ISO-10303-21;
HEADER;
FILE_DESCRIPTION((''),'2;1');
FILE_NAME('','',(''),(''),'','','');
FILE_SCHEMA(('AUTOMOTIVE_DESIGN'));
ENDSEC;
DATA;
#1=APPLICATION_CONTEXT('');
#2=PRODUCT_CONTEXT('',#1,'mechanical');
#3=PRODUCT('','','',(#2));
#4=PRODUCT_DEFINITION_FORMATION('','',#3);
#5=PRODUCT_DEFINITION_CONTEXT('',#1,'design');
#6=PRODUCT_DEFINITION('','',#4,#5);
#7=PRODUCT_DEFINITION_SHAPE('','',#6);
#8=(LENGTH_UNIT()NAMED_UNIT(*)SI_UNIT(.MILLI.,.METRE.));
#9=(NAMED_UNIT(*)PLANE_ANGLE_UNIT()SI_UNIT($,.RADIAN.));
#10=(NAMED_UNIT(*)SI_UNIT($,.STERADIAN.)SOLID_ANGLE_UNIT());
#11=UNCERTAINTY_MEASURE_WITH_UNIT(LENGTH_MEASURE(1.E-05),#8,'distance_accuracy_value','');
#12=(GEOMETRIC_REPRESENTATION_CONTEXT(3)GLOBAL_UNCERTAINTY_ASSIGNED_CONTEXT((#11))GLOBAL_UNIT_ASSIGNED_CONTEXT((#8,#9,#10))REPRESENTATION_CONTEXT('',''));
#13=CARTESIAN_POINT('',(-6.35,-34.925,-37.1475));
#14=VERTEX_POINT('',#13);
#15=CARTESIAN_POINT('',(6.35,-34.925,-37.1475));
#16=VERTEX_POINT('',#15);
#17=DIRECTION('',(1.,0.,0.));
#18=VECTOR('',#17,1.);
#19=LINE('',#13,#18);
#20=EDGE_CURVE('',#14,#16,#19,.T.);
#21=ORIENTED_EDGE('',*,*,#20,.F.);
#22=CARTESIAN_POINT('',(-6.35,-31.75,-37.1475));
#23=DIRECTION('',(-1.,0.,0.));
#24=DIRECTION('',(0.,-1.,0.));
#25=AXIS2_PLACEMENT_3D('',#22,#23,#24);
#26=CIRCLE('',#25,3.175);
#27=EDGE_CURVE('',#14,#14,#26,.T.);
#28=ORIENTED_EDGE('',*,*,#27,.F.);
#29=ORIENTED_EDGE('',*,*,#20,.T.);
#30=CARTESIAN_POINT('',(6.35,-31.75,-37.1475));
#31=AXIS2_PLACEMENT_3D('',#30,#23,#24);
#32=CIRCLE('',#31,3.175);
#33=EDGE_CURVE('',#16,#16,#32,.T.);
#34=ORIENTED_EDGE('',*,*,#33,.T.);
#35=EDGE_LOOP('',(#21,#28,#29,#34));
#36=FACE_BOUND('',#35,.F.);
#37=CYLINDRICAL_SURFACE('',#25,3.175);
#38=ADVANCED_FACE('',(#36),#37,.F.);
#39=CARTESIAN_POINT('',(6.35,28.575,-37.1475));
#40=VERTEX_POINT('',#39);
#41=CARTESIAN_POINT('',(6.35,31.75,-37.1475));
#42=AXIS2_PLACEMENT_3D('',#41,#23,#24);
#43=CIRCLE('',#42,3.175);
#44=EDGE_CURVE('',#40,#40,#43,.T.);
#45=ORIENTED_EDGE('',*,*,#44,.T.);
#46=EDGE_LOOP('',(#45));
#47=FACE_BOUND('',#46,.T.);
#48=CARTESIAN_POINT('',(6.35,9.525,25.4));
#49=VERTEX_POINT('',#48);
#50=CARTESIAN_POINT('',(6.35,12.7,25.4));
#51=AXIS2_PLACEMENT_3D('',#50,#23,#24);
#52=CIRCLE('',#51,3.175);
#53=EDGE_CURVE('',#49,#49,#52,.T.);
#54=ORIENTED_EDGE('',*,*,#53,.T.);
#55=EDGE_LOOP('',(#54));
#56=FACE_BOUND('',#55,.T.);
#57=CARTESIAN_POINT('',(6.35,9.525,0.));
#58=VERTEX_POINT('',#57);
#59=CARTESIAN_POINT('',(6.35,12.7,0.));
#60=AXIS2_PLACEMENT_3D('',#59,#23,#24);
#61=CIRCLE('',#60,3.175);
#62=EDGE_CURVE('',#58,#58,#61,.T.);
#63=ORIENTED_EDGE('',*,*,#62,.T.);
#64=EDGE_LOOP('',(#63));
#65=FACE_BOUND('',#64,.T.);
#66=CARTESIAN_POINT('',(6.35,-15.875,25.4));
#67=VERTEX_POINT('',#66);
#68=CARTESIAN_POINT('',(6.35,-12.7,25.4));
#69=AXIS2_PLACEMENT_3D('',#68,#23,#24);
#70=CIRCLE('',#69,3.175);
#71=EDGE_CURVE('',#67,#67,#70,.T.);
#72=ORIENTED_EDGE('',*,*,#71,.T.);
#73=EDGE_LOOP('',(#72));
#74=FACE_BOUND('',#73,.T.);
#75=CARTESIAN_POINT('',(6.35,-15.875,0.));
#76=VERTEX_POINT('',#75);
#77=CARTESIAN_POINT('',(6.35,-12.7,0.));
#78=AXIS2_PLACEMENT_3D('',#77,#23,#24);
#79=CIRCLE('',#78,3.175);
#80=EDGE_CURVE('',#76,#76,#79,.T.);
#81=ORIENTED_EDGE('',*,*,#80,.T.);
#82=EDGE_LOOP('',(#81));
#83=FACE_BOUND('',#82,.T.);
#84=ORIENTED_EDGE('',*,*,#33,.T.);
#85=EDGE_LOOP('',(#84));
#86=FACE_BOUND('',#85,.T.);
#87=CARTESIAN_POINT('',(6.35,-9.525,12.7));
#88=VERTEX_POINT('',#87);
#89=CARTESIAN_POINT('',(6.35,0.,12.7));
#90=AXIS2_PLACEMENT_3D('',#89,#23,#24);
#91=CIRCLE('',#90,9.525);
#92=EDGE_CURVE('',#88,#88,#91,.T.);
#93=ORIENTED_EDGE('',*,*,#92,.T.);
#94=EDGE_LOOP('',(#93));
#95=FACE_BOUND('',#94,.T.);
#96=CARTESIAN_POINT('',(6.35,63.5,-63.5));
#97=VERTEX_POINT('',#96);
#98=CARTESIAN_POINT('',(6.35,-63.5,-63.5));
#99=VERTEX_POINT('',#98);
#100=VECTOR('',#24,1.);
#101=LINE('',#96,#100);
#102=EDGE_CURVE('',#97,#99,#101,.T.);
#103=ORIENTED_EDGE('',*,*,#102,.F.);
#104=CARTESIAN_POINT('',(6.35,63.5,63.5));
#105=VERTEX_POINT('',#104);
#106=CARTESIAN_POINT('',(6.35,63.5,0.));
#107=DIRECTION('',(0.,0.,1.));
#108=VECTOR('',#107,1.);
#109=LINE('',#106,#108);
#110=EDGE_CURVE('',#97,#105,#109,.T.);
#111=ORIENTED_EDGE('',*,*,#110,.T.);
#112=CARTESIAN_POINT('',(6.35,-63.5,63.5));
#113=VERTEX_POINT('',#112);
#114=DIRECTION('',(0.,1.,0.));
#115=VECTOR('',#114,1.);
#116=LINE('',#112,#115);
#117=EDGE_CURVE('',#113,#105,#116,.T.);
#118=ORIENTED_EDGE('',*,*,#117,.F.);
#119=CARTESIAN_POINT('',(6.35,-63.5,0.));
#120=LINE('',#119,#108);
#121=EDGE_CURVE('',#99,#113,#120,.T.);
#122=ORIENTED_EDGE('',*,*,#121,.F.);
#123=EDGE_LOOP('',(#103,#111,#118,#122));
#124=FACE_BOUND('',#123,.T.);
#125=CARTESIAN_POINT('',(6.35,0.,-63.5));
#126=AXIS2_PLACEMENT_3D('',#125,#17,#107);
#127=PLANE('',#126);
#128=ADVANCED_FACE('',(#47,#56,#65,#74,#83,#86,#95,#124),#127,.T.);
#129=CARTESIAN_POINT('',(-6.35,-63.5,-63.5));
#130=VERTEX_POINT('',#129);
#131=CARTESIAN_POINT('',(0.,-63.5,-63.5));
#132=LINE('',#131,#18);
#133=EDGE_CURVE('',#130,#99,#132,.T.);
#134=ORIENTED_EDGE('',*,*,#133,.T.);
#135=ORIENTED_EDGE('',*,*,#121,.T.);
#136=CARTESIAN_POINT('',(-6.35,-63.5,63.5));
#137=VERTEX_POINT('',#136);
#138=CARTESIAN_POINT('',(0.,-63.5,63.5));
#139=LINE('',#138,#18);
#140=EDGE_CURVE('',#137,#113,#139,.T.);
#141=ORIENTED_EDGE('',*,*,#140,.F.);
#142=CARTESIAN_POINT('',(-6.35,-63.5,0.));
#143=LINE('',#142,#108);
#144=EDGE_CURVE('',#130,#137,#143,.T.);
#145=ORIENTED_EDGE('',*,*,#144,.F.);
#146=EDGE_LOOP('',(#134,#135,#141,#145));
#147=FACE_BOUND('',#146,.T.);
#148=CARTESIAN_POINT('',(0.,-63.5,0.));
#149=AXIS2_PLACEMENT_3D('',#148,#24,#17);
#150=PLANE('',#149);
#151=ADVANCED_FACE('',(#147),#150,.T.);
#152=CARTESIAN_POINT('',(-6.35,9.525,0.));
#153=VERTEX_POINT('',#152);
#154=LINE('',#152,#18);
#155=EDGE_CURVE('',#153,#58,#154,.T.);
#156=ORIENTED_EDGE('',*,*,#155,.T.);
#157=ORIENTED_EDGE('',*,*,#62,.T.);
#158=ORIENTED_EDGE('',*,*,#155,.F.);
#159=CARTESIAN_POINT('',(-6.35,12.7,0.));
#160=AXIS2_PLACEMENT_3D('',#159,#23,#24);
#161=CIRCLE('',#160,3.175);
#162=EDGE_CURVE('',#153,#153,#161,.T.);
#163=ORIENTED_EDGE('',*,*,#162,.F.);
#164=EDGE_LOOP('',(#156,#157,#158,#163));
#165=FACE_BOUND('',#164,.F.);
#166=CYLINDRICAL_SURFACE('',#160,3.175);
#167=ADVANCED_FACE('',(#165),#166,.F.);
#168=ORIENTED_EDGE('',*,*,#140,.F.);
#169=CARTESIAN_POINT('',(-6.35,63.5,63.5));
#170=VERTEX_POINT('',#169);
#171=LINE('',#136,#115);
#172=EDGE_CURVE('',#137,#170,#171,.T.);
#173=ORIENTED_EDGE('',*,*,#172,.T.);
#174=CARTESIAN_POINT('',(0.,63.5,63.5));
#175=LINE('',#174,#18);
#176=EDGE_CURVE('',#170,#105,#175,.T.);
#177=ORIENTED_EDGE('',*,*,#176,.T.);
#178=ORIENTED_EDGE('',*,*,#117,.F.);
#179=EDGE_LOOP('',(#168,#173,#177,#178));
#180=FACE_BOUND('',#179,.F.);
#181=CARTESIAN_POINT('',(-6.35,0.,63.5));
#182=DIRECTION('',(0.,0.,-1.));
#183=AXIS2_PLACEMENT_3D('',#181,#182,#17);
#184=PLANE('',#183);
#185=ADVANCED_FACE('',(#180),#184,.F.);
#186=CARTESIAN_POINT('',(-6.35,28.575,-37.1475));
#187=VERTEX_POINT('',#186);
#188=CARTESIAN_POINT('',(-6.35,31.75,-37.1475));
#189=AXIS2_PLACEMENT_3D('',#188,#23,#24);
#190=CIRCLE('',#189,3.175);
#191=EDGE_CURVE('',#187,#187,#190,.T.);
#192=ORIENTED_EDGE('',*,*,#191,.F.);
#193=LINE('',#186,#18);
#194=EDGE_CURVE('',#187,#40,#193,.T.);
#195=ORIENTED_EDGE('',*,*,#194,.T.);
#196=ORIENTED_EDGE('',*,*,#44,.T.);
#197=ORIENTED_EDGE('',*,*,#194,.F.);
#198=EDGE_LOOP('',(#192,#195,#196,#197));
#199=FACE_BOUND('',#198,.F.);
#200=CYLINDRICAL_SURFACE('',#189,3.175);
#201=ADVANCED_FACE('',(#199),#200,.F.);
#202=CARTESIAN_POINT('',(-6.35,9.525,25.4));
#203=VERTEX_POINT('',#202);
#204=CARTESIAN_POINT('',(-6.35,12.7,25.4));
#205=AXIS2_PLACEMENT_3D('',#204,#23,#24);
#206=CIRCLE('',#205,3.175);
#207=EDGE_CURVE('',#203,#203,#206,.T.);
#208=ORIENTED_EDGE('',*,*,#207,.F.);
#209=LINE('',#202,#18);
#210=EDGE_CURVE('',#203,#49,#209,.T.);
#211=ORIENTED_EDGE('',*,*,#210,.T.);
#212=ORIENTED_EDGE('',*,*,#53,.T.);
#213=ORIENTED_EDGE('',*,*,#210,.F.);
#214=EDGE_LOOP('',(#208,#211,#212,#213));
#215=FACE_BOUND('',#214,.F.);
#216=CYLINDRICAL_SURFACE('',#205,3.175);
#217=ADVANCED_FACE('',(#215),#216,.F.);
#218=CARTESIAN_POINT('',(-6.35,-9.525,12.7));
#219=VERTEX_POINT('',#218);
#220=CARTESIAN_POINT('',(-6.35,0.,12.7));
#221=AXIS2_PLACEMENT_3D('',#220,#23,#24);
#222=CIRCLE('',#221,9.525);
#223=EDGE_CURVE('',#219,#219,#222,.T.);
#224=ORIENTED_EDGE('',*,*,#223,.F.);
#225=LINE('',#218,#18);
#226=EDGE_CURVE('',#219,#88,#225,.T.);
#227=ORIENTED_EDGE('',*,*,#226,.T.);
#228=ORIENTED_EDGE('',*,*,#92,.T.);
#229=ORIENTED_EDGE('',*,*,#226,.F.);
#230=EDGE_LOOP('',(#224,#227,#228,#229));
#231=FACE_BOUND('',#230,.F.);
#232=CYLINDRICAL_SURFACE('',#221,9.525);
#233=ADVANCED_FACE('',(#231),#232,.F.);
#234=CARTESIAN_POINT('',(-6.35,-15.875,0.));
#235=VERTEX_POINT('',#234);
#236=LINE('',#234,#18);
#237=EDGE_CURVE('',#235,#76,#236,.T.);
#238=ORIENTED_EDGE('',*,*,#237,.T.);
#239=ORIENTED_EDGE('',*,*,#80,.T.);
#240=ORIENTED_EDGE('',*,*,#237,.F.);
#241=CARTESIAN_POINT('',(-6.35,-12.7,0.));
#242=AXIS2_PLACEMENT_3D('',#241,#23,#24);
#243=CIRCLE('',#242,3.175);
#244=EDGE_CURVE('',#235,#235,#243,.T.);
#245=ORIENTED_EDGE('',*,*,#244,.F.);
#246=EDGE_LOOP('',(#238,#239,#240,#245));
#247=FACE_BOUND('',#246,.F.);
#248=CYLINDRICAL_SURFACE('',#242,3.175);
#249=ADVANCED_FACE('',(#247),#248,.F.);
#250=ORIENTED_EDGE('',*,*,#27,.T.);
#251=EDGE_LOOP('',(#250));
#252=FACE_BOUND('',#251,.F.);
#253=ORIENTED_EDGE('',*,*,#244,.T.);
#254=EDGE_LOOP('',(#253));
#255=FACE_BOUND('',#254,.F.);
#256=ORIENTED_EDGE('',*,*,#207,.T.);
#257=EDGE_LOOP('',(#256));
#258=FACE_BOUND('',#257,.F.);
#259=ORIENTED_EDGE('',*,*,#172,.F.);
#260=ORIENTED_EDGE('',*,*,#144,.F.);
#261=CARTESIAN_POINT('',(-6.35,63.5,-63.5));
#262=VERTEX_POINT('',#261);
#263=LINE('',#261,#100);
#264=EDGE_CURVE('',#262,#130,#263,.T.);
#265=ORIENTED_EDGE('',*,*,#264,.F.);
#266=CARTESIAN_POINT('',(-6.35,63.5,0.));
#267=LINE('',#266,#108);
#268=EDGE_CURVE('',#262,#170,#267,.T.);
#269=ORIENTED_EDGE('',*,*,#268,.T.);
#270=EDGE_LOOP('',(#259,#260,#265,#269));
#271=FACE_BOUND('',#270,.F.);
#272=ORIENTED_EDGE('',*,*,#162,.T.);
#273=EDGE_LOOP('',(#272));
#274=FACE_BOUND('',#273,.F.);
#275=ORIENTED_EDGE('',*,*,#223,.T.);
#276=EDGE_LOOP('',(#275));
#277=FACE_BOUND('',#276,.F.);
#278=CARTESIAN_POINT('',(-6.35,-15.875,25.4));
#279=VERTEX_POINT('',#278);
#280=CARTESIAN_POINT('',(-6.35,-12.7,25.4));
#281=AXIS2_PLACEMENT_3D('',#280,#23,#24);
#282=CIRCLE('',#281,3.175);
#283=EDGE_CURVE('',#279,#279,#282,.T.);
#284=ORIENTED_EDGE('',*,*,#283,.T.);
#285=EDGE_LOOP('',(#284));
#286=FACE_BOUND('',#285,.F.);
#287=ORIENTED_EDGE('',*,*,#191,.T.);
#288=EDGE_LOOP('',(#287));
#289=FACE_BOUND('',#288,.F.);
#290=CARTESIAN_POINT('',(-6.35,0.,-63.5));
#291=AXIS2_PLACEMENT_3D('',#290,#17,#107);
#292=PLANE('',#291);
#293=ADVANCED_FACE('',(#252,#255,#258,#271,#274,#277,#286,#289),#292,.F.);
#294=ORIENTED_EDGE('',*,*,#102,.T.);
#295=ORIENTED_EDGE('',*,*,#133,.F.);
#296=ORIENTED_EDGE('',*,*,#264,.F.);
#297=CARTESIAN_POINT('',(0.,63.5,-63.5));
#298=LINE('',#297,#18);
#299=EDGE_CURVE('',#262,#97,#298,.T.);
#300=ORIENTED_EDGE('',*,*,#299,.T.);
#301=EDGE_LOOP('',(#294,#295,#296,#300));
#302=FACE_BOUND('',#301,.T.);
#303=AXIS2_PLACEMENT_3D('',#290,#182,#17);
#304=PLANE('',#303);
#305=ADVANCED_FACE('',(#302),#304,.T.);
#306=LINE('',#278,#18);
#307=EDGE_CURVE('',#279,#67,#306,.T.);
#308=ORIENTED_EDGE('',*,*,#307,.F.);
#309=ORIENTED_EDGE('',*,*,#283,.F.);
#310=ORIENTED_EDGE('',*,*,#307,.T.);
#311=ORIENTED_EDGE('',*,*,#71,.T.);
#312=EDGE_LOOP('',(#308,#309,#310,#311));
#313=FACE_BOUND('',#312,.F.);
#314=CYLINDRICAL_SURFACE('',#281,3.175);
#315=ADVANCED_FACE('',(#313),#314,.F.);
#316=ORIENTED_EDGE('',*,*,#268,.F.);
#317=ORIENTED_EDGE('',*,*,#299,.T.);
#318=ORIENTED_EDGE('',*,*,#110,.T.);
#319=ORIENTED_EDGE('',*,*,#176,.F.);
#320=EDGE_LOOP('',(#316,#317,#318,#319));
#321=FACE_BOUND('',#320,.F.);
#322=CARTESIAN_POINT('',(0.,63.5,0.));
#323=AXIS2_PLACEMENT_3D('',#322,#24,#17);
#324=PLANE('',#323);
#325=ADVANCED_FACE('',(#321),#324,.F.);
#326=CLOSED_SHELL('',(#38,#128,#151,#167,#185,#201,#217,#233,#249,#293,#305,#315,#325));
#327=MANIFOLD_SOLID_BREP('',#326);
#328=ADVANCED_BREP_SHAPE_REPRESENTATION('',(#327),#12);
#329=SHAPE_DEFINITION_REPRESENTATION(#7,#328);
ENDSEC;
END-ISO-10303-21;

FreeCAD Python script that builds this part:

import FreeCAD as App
import Part
import Sketcher
Q = App.Units.Quantity

doc = App.newDocument("Part")
params = doc.addObject("Spreadsheet::Sheet", "Params")
for row, (alias, value) in enumerate([
    ("sketch1_height", "5 in"),
    ("sketch1_width", "0.5 in"),
    ("pad1_length", "5 in"),
    ("sketch2_diameter", "0.75 in"),
    ("sketch2_diameter2", "0.25 in"),
], start=1):
    params.set(f"A{row}", alias)
    params.set(f"B{row}", "=" + value)
    params.setAlias(f"B{row}", alias)

body = doc.addObject("PartDesign::Body", "Body")

# Sketch on XZ plane
sketch1 = body.newObject("Sketcher::SketchObject", "Sketch")
sketch1.AttachmentSupport = (doc.getObject("XZ_Plane"), [""])
sketch1.MapMode = "FlatFace"
sketch1.addGeometry([
    Part.LineSegment(App.Vector(-6, 64, 0), App.Vector(-6, -64, 0)),
    Part.LineSegment(App.Vector(-6, -64, 0), App.Vector(6, -64, 0)),
    Part.LineSegment(App.Vector(6, -64, 0), App.Vector(6, 64, 0)),
    Part.LineSegment(App.Vector(6, 64, 0), App.Vector(-6, 64, 0)),
], False)
sketch1.addConstraint([
    Sketcher.Constraint("Coincident", 0, 2, 1, 1),
    Sketcher.Constraint("Coincident", 1, 2, 2, 1),
    Sketcher.Constraint("Coincident", 2, 2, 3, 1),
    Sketcher.Constraint("Coincident", 3, 2, 0, 1),
    Sketcher.Constraint("Vertical", 0),
    Sketcher.Constraint("Horizontal", 1),
    Sketcher.Constraint("Vertical", 2),
    Sketcher.Constraint("Horizontal", 3),
    Sketcher.Constraint("Symmetric", 0, 2, 2, 2, -1, 1),
    Sketcher.Constraint("DistanceY", 0, 2, 0, 1, Q("5 in")),
    Sketcher.Constraint("DistanceX", 1, 1, 1, 2, Q("0.5 in")),
])
sketch1.setExpression("Constraints[9]", "Params.sketch1_height")
sketch1.setExpression("Constraints[10]", "Params.sketch1_width")
pad1 = body.newObject("PartDesign::Pad", "Pad")
pad1.Profile = sketch1
pad1.setExpression("Length", "Params.pad1_length")
pad1.Midplane = True

# Sketch on YZ plane
sketch2 = body.newObject("Sketcher::SketchObject", "Sketch001")
sketch2.AttachmentSupport = (doc.getObject("YZ_Plane"), [""])
sketch2.MapMode = "FlatFace"
sketch2.AttachmentOffset = App.Placement(App.Vector(0, 0, -0.25 * 25.4), App.Rotation())
sketch2.addGeometry([
    Part.Circle(App.Vector(0, 12.7, 0), App.Vector(0, 0, 1), 9.5),  # 0
    Part.Circle(App.Vector(12.7, 25.4, 0), App.Vector(0, 0, 1), 3.2),  # 1
    Part.Circle(App.Vector(12.7, 0, 0), App.Vector(0, 0, 1), 3.2),  # 2
    Part.Circle(App.Vector(-12.7, 0, 0), App.Vector(0, 0, 1), 3.2),  # 3
    Part.Circle(App.Vector(-12.7, 25.4, 0), App.Vector(0, 0, 1), 3.2),  # 4
    Part.Circle(App.Vector(31.8, -37.1, 0), App.Vector(0, 0, 1), 3.2),  # 5
    Part.Circle(App.Vector(-31.8, -37.1, 0), App.Vector(0, 0, 1), 3.2),  # 6
], False)
sketch2.addConstraint([
    Sketcher.Constraint("Equal", 1, 2),
    Sketcher.Constraint("Equal", 2, 3),
    Sketcher.Constraint("Equal", 3, 4),
    Sketcher.Constraint("Equal", 4, 5),
    Sketcher.Constraint("Equal", 5, 6),
    Sketcher.Constraint("Symmetric", 2, 3, 3, 3, -1, 1),
    Sketcher.Constraint("Symmetric", 1, 3, 4, 3, -2),
    Sketcher.Constraint("Symmetric", 5, 3, 6, 3, -2),
    Sketcher.Constraint("PointOnObject", 0, 3, -2),
    Sketcher.Constraint("PointOnObject", 2, 3, -1),
    Sketcher.Constraint("Vertical", 1, 3, 2, 3),
    Sketcher.Constraint("Diameter", 0, Q("0.75 in")),
    Sketcher.Constraint("Diameter", 1, Q("0.25 in")),
    Sketcher.Constraint("DistanceY", -1, 1, 1, 3, Q("1 in")),
    Sketcher.Constraint("DistanceX", 3, 3, 2, 3, Q("1 in")),
    Sketcher.Constraint("DistanceY", -1, 1, 0, 3, Q("0.5 in")),
    Sketcher.Constraint("DistanceX", 6, 3, 5, 3, Q("2.5 in")),
    Sketcher.Constraint("DistanceY", 5, 3, -1, 1, Q("1.4625 in")),
])
sketch2.setExpression("Constraints[11]", "Params.sketch2_diameter")
sketch2.setExpression("Constraints[12]", "Params.sketch2_diameter2")
pocket1 = body.newObject("PartDesign::Pocket", "Pocket")
pocket1.Profile = sketch2
pocket1.Type = "ThroughAll"
pocket1.Reversed = True

doc.recompute()
